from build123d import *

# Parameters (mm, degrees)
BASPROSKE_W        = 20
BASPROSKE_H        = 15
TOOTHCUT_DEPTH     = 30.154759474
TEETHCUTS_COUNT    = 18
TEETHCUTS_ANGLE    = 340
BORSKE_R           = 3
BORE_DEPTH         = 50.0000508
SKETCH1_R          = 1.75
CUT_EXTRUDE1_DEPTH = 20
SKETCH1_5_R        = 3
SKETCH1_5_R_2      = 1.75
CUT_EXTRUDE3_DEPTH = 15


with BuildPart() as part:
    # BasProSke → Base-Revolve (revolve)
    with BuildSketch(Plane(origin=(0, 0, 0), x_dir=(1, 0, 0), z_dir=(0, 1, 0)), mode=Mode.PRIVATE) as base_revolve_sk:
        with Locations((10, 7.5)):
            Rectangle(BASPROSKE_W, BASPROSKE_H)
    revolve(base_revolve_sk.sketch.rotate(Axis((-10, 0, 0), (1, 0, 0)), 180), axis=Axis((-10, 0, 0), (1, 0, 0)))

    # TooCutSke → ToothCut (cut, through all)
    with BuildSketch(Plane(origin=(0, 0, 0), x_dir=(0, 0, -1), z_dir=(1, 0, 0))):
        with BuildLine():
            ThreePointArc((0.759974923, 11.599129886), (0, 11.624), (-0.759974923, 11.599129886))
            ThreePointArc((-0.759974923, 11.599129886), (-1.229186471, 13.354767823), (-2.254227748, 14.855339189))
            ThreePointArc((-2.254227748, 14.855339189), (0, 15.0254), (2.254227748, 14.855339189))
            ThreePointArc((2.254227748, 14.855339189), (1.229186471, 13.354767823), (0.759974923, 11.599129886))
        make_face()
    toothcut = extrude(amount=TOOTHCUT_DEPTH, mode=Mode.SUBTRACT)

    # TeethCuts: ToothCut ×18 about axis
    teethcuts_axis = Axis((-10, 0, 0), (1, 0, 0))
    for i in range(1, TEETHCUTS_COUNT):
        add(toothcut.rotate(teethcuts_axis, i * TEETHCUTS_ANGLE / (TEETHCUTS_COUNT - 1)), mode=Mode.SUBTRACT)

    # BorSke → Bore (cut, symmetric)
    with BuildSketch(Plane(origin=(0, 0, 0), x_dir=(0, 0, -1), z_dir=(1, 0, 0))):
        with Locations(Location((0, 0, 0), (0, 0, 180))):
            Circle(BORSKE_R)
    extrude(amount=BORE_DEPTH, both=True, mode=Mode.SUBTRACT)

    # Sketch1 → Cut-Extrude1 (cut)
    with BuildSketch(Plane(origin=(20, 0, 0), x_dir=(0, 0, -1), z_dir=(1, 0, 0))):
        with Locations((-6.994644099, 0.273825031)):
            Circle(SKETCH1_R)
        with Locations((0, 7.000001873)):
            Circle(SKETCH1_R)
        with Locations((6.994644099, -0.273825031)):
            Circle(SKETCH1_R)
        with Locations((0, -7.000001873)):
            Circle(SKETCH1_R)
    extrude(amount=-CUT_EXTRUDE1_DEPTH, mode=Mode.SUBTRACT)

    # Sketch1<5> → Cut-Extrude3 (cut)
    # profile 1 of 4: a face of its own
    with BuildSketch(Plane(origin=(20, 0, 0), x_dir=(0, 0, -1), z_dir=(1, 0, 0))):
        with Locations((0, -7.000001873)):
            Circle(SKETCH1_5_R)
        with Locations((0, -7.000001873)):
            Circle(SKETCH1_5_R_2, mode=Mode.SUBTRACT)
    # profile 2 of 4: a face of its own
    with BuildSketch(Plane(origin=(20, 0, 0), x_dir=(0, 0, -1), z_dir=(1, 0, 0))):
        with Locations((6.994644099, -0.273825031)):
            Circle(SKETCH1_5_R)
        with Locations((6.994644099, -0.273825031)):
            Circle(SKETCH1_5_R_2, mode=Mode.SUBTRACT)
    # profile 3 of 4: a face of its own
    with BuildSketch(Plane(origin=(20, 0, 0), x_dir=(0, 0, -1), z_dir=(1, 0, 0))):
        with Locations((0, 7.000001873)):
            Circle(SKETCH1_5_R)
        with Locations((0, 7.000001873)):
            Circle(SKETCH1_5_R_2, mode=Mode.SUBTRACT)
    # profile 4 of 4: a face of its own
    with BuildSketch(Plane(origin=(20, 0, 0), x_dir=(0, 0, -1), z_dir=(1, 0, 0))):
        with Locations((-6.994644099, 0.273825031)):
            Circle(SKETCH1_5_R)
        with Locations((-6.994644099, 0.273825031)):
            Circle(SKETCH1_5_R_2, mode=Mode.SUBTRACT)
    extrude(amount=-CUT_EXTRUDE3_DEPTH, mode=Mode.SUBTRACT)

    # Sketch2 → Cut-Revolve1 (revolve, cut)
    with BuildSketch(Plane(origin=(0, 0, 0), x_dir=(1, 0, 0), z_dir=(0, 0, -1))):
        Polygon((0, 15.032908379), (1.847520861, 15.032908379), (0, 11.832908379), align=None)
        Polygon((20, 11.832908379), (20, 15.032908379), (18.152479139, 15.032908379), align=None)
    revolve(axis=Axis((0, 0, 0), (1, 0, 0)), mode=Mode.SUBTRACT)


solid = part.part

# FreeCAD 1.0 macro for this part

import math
import FreeCAD as App
import Part
import Sketcher
from FreeCAD import Vector
Q = App.Units.Quantity


def add_polygon(sketch, points):
    """Adds a closed chain of lines whose ends are joined by coincident constraints."""
    first, n = sketch.GeometryCount, len(points)
    for a, b in zip(points, points[1:] + points[:1]):
        sketch.addGeometry(Part.LineSegment(App.Vector(*a, 0), App.Vector(*b, 0)), False)
    for i in range(n):
        sketch.addConstraint(Sketcher.Constraint("Coincident", first + i, 2, first + (i + 1) % n, 1))

doc = App.newDocument("Part")
body = doc.addObject("PartDesign::Body", "Body")

# Sketch on XZ plane
sketch1 = body.newObject("Sketcher::SketchObject", "Sketch")
sketch1.AttachmentSupport = (doc.getObject("XZ_Plane"), [""])
sketch1.MapMode = "FlatFace"
add_polygon(sketch1, [(0, -15), (0, 0), (20, 0), (20, -15)])  # lines 0-3
sketch1.addConstraint([
    Sketcher.Constraint("Vertical", 0),
    Sketcher.Constraint("Horizontal", 1),
    Sketcher.Constraint("Vertical", 2),
    Sketcher.Constraint("Horizontal", 3),
    Sketcher.Constraint("Coincident", 0, 2, -1, 1),
    Sketcher.Constraint("DistanceX", 1, 1, 1, 2, Q("20 mm")),
    Sketcher.Constraint("DistanceY", 0, 1, 0, 2, Q("15 mm")),
])
revolution = body.newObject("PartDesign::Revolution", "Revolution")
revolution.Profile = sketch1
revolution.ReferenceAxis = (sketch1, ["H_Axis"])
revolution.Angle = 360

# Sketch on YZ plane
sketch2 = body.newObject("Sketcher::SketchObject", "Sketch001")
sketch2.AttachmentSupport = (doc.getObject("YZ_Plane"), [""])
sketch2.MapMode = "FlatFace"
sketch2.addGeometry([
    Part.ArcOfCircle(Part.Circle(Vector(0, 0, 0), Vector(0, 0, 1), 11.624), math.radians(-3.748661), math.radians(3.748661)),
    Part.ArcOfCircle(Part.Circle(Vector(11.102561, -6.137095, 0), Vector(0, 0, 1), 5.4), math.radians(45.976059), math.radians(84.723789)),
    Part.ArcOfCircle(Part.Circle(Vector(0, 0, 0), Vector(0, 0, 1), 15.0254), math.radians(-8.628538), math.radians(8.628538)),
    Part.ArcOfCircle(Part.Circle(Vector(11.102561, 6.137095, 0), Vector(0, 0, 1), 5.4), math.radians(-84.723789), math.radians(-45.976059)),
], False)
sketch2.addConstraint([
    Sketcher.Constraint("Coincident", 0, 1, 1, 2),
    Sketcher.Constraint("Coincident", 1, 1, 2, 1),
    Sketcher.Constraint("Coincident", 2, 2, 3, 2),
    Sketcher.Constraint("Coincident", 3, 1, 0, 2),
    Sketcher.Constraint("Coincident", 0, 3, -1, 1),
    Sketcher.Constraint("Coincident", 2, 3, -1, 1),
    Sketcher.Constraint("Equal", 1, 3),
    Sketcher.Constraint("Symmetric", 1, 3, 3, 3, -1),
    Sketcher.Constraint("Radius", 1, Q("5.4 mm")),
    Sketcher.Constraint("Radius", 0, Q("11.624 mm")),
    Sketcher.Constraint("Radius", 2, Q("15.0254 mm")),
    Sketcher.Constraint("DistanceX", -1, 1, 1, 3, Q("11.102561 mm")),
    Sketcher.Constraint("DistanceX", -1, 1, 0, 1, Q("11.59913 mm")),
])
pocket1 = body.newObject("PartDesign::Pocket", "Pocket")
pocket1.Profile = sketch2
pocket1.Type = "ThroughAll"
pocket1.Reversed = True
doc.recompute()

polarpattern = body.newObject("PartDesign::PolarPattern", "PolarPattern")
polarpattern.Originals = [pocket1]
polarpattern.Axis = (doc.getObject("X_Axis"), [""])
polarpattern.Angle = 360
polarpattern.Occurrences = 18
body.Tip = polarpattern

# Sketch on YZ plane
sketch3 = body.newObject("Sketcher::SketchObject", "Sketch002")
sketch3.AttachmentSupport = (doc.getObject("YZ_Plane"), [""])
sketch3.MapMode = "FlatFace"
sketch3.addGeometry(Part.Circle(Vector(0, 0, 0), Vector(0, 0, 1), 3), False)
sketch3.addConstraint([
    Sketcher.Constraint("Coincident", 0, 3, -1, 1),
    Sketcher.Constraint("Diameter", 0, Q("6 mm")),
])
pocket2 = body.newObject("PartDesign::Pocket", "Pocket001")
pocket2.Profile = sketch3
pocket2.Length = 100.000102
pocket2.Midplane = True

# Sketch on YZ plane
sketch4 = body.newObject("Sketcher::SketchObject", "Sketch003")
sketch4.AttachmentSupport = (doc.getObject("YZ_Plane"), [""])
sketch4.MapMode = "FlatFace"
sketch4.AttachmentOffset = App.Placement(Vector(0, 0, 20), App.Rotation())
sketch4.addGeometry([
    Part.Circle(Vector(0.273825, 6.994644, 0), Vector(0, 0, 1), 1.75),
    Part.Circle(Vector(7.000002, 0, 0), Vector(0, 0, 1), 1.75),
    Part.Circle(Vector(-0.273825, -6.994644, 0), Vector(0, 0, 1), 1.75),
    Part.Circle(Vector(-7.000002, 0, 0), Vector(0, 0, 1), 1.75),
], False)
sketch4.addConstraint([
    Sketcher.Constraint("Equal", 0, 1),
    Sketcher.Constraint("Equal", 1, 2),
    Sketcher.Constraint("Equal", 2, 3),
    Sketcher.Constraint("Symmetric", 0, 3, 2, 3, -1, 1),
    Sketcher.Constraint("Symmetric", 1, 3, 3, 3, -1, 1),
    Sketcher.Constraint("PointOnObject", 1, 3, -1),
    Sketcher.Constraint("Diameter", 0, Q("3.5 mm")),
    Sketcher.Constraint("DistanceX", -1, 1, 1, 3, Q("7.000002 mm")),
    Sketcher.Constraint("DistanceX", 2, 3, 0, 3, Q("0.54765 mm")),
    Sketcher.Constraint("DistanceY", 2, 3, 0, 3, Q("13.989288 mm")),
])
pocket3 = body.newObject("PartDesign::Pocket", "Pocket002")
pocket3.Profile = sketch4
pocket3.Length = 20

# Sketch on YZ plane
sketch5 = body.newObject("Sketcher::SketchObject", "Sketch004")
sketch5.AttachmentSupport = (doc.getObject("YZ_Plane"), [""])
sketch5.MapMode = "FlatFace"
sketch5.AttachmentOffset = App.Placement(Vector(0, 0, 20), App.Rotation())
sketch5.addGeometry([
    Part.Circle(Vector(-7.000002, 0, 0), Vector(0, 0, 1), 3),  # 0
    Part.Circle(Vector(-7.000002, 0, 0), Vector(0, 0, 1), 1.75),  # 1
    Part.Circle(Vector(-0.273825, -6.994644, 0), Vector(0, 0, 1), 3),  # 2
    Part.Circle(Vector(-0.273825, -6.994644, 0), Vector(0, 0, 1), 1.75),  # 3
    Part.Circle(Vector(7.000002, 0, 0), Vector(0, 0, 1), 3),  # 4
    Part.Circle(Vector(7.000002, 0, 0), Vector(0, 0, 1), 1.75),  # 5
    Part.Circle(Vector(0.273825, 6.994644, 0), Vector(0, 0, 1), 3),  # 6
    Part.Circle(Vector(0.273825, 6.994644, 0), Vector(0, 0, 1), 1.75),  # 7
], False)
sketch5.addConstraint([
    Sketcher.Constraint("Coincident", 1, 3, 0, 3),
    Sketcher.Constraint("Coincident", 3, 3, 2, 3),
    Sketcher.Constraint("Coincident", 5, 3, 4, 3),
    Sketcher.Constraint("Coincident", 7, 3, 6, 3),
    Sketcher.Constraint("Equal", 0, 2),
    Sketcher.Constraint("Equal", 1, 3),
    Sketcher.Constraint("Equal", 2, 4),
    Sketcher.Constraint("Equal", 3, 5),
    Sketcher.Constraint("Equal", 4, 6),
    Sketcher.Constraint("Equal", 5, 7),
    Sketcher.Constraint("Symmetric", 0, 3, 4, 3, -1, 1),
    Sketcher.Constraint("Symmetric", 2, 3, 6, 3, -1, 1),
    Sketcher.Constraint("PointOnObject", 0, 3, -1),
    Sketcher.Constraint("Diameter", 0, Q("6 mm")),
    Sketcher.Constraint("Diameter", 1, Q("3.5 mm")),
    Sketcher.Constraint("DistanceX", 0, 3, -1, 1, Q("7.000002 mm")),
    Sketcher.Constraint("DistanceX", 2, 3, 6, 3, Q("0.54765 mm")),
    Sketcher.Constraint("DistanceY", 2, 3, 6, 3, Q("13.989288 mm")),
])
pocket4 = body.newObject("PartDesign::Pocket", "Pocket003")
pocket4.Profile = sketch5
pocket4.Length = 15

# Sketch on XY plane
sketch6 = body.newObject("Sketcher::SketchObject", "Sketch005")
sketch6.AttachmentSupport = (doc.getObject("XY_Plane"), [""])
sketch6.MapMode = "FlatFace"
add_polygon(sketch6, [(1.847521, -15.032908), (0, -15.032908), (0, -11.832908)])  # lines 0-2
add_polygon(sketch6, [(20, -11.832908), (20, -15.032908), (18.152479, -15.032908)])  # lines 3-5
sketch6.addConstraint([
    Sketcher.Constraint("Horizontal", 0),
    Sketcher.Constraint("Vertical", 1),
    Sketcher.Constraint("Vertical", 3),
    Sketcher.Constraint("Horizontal", 4),
    Sketcher.Constraint("PointOnObject", 0, 2, -2),
    Sketcher.Constraint("Horizontal", 2, 2, 3, 2),
    Sketcher.Constraint("Horizontal", 1, 2, 5, 2),
    Sketcher.Constraint("Equal", 0, 4),
    Sketcher.Constraint("Angle", 2, Q("-60 deg")),
    Sketcher.Constraint("DistanceY", 1, 1, 1, 2, Q("3.2 mm")),
    Sketcher.Constraint("DistanceX", -1, 1, 3, 2, Q("20 mm")),
    Sketcher.Constraint("DistanceY", 0, 2, -1, 1, Q("15.032908 mm")),
])
groove = body.newObject("PartDesign::Groove", "Groove")
groove.Profile = sketch6
groove.ReferenceAxis = (sketch6, ["H_Axis"])
groove.Angle = 360

doc.recompute()
